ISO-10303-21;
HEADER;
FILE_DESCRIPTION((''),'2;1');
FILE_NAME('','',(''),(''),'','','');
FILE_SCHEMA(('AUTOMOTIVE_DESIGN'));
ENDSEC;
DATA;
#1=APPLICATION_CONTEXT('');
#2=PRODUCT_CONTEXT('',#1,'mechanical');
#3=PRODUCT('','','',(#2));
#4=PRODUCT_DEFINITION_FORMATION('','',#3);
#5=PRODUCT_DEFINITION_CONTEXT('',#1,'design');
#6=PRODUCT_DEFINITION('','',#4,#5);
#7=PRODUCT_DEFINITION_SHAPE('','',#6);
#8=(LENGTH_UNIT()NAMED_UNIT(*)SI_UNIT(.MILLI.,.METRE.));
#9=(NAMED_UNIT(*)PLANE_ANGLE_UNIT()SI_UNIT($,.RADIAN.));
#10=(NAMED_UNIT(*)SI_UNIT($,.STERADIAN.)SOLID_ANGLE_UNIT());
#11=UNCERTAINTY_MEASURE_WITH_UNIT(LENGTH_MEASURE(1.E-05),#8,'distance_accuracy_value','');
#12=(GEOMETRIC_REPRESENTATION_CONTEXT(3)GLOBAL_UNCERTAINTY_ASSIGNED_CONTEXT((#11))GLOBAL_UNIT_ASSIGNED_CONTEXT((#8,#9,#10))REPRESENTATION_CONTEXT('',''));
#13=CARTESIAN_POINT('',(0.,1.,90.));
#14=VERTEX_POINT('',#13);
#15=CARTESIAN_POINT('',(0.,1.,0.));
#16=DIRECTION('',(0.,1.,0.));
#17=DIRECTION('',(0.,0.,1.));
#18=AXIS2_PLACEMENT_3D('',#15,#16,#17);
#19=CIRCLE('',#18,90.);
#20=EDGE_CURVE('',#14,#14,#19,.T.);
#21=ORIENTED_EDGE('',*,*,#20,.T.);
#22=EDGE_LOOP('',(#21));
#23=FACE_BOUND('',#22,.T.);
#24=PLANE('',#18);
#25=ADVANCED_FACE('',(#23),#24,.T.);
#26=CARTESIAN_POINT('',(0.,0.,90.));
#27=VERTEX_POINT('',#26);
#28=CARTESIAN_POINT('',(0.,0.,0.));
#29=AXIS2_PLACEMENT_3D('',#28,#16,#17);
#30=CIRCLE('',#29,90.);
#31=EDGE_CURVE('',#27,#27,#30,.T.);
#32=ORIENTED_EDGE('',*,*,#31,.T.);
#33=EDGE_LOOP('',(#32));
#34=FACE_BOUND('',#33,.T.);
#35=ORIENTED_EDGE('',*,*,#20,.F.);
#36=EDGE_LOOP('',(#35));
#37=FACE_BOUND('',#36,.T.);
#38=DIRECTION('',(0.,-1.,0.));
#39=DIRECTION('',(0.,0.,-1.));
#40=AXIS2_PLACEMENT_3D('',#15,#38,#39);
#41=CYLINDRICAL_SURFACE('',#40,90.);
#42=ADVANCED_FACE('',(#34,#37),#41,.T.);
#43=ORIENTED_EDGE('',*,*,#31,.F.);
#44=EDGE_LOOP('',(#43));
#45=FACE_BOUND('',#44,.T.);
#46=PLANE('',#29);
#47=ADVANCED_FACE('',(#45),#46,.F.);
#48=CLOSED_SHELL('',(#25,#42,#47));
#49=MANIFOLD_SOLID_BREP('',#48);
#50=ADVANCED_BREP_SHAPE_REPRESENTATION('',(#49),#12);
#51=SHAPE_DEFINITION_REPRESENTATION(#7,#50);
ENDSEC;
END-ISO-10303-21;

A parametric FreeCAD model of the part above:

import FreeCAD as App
import Part
import Sketcher

V = App.Vector
Q = App.Units.Quantity

doc = App.newDocument("Part")
params = doc.addObject("Spreadsheet::Sheet", "Params")
for row, (alias, value) in enumerate([
    ("sketch1_diameter", "180 mm"),
    ("pad1_length", "1 mm"),
], start=1):
    params.set(f"A{row}", alias)
    params.set(f"B{row}", "=" + value)
    params.setAlias(f"B{row}", alias)

body = doc.addObject("PartDesign::Body", "Body")

sketch1 = body.newObject("Sketcher::SketchObject", "Sketch")
sketch1.AttachmentSupport = (doc.getObject("XZ_Plane"), [""])
sketch1.MapMode = "FlatFace"
sketch1.addGeometry(Part.Circle(V(0, 0, 0), V(0, 0, 1), 90), False)
sketch1.addConstraint(Sketcher.Constraint("Coincident", 0, 3, -1, 1))
sketch1.addConstraint(Sketcher.Constraint("Diameter", 0, Q("180 mm")))
sketch1.setExpression("Constraints[1]", "Params.sketch1_diameter")
pad1 = body.newObject("PartDesign::Pad", "Pad")
pad1.Profile = sketch1
pad1.setExpression("Length", "Params.pad1_length")
pad1.Reversed = True

doc.recompute()
